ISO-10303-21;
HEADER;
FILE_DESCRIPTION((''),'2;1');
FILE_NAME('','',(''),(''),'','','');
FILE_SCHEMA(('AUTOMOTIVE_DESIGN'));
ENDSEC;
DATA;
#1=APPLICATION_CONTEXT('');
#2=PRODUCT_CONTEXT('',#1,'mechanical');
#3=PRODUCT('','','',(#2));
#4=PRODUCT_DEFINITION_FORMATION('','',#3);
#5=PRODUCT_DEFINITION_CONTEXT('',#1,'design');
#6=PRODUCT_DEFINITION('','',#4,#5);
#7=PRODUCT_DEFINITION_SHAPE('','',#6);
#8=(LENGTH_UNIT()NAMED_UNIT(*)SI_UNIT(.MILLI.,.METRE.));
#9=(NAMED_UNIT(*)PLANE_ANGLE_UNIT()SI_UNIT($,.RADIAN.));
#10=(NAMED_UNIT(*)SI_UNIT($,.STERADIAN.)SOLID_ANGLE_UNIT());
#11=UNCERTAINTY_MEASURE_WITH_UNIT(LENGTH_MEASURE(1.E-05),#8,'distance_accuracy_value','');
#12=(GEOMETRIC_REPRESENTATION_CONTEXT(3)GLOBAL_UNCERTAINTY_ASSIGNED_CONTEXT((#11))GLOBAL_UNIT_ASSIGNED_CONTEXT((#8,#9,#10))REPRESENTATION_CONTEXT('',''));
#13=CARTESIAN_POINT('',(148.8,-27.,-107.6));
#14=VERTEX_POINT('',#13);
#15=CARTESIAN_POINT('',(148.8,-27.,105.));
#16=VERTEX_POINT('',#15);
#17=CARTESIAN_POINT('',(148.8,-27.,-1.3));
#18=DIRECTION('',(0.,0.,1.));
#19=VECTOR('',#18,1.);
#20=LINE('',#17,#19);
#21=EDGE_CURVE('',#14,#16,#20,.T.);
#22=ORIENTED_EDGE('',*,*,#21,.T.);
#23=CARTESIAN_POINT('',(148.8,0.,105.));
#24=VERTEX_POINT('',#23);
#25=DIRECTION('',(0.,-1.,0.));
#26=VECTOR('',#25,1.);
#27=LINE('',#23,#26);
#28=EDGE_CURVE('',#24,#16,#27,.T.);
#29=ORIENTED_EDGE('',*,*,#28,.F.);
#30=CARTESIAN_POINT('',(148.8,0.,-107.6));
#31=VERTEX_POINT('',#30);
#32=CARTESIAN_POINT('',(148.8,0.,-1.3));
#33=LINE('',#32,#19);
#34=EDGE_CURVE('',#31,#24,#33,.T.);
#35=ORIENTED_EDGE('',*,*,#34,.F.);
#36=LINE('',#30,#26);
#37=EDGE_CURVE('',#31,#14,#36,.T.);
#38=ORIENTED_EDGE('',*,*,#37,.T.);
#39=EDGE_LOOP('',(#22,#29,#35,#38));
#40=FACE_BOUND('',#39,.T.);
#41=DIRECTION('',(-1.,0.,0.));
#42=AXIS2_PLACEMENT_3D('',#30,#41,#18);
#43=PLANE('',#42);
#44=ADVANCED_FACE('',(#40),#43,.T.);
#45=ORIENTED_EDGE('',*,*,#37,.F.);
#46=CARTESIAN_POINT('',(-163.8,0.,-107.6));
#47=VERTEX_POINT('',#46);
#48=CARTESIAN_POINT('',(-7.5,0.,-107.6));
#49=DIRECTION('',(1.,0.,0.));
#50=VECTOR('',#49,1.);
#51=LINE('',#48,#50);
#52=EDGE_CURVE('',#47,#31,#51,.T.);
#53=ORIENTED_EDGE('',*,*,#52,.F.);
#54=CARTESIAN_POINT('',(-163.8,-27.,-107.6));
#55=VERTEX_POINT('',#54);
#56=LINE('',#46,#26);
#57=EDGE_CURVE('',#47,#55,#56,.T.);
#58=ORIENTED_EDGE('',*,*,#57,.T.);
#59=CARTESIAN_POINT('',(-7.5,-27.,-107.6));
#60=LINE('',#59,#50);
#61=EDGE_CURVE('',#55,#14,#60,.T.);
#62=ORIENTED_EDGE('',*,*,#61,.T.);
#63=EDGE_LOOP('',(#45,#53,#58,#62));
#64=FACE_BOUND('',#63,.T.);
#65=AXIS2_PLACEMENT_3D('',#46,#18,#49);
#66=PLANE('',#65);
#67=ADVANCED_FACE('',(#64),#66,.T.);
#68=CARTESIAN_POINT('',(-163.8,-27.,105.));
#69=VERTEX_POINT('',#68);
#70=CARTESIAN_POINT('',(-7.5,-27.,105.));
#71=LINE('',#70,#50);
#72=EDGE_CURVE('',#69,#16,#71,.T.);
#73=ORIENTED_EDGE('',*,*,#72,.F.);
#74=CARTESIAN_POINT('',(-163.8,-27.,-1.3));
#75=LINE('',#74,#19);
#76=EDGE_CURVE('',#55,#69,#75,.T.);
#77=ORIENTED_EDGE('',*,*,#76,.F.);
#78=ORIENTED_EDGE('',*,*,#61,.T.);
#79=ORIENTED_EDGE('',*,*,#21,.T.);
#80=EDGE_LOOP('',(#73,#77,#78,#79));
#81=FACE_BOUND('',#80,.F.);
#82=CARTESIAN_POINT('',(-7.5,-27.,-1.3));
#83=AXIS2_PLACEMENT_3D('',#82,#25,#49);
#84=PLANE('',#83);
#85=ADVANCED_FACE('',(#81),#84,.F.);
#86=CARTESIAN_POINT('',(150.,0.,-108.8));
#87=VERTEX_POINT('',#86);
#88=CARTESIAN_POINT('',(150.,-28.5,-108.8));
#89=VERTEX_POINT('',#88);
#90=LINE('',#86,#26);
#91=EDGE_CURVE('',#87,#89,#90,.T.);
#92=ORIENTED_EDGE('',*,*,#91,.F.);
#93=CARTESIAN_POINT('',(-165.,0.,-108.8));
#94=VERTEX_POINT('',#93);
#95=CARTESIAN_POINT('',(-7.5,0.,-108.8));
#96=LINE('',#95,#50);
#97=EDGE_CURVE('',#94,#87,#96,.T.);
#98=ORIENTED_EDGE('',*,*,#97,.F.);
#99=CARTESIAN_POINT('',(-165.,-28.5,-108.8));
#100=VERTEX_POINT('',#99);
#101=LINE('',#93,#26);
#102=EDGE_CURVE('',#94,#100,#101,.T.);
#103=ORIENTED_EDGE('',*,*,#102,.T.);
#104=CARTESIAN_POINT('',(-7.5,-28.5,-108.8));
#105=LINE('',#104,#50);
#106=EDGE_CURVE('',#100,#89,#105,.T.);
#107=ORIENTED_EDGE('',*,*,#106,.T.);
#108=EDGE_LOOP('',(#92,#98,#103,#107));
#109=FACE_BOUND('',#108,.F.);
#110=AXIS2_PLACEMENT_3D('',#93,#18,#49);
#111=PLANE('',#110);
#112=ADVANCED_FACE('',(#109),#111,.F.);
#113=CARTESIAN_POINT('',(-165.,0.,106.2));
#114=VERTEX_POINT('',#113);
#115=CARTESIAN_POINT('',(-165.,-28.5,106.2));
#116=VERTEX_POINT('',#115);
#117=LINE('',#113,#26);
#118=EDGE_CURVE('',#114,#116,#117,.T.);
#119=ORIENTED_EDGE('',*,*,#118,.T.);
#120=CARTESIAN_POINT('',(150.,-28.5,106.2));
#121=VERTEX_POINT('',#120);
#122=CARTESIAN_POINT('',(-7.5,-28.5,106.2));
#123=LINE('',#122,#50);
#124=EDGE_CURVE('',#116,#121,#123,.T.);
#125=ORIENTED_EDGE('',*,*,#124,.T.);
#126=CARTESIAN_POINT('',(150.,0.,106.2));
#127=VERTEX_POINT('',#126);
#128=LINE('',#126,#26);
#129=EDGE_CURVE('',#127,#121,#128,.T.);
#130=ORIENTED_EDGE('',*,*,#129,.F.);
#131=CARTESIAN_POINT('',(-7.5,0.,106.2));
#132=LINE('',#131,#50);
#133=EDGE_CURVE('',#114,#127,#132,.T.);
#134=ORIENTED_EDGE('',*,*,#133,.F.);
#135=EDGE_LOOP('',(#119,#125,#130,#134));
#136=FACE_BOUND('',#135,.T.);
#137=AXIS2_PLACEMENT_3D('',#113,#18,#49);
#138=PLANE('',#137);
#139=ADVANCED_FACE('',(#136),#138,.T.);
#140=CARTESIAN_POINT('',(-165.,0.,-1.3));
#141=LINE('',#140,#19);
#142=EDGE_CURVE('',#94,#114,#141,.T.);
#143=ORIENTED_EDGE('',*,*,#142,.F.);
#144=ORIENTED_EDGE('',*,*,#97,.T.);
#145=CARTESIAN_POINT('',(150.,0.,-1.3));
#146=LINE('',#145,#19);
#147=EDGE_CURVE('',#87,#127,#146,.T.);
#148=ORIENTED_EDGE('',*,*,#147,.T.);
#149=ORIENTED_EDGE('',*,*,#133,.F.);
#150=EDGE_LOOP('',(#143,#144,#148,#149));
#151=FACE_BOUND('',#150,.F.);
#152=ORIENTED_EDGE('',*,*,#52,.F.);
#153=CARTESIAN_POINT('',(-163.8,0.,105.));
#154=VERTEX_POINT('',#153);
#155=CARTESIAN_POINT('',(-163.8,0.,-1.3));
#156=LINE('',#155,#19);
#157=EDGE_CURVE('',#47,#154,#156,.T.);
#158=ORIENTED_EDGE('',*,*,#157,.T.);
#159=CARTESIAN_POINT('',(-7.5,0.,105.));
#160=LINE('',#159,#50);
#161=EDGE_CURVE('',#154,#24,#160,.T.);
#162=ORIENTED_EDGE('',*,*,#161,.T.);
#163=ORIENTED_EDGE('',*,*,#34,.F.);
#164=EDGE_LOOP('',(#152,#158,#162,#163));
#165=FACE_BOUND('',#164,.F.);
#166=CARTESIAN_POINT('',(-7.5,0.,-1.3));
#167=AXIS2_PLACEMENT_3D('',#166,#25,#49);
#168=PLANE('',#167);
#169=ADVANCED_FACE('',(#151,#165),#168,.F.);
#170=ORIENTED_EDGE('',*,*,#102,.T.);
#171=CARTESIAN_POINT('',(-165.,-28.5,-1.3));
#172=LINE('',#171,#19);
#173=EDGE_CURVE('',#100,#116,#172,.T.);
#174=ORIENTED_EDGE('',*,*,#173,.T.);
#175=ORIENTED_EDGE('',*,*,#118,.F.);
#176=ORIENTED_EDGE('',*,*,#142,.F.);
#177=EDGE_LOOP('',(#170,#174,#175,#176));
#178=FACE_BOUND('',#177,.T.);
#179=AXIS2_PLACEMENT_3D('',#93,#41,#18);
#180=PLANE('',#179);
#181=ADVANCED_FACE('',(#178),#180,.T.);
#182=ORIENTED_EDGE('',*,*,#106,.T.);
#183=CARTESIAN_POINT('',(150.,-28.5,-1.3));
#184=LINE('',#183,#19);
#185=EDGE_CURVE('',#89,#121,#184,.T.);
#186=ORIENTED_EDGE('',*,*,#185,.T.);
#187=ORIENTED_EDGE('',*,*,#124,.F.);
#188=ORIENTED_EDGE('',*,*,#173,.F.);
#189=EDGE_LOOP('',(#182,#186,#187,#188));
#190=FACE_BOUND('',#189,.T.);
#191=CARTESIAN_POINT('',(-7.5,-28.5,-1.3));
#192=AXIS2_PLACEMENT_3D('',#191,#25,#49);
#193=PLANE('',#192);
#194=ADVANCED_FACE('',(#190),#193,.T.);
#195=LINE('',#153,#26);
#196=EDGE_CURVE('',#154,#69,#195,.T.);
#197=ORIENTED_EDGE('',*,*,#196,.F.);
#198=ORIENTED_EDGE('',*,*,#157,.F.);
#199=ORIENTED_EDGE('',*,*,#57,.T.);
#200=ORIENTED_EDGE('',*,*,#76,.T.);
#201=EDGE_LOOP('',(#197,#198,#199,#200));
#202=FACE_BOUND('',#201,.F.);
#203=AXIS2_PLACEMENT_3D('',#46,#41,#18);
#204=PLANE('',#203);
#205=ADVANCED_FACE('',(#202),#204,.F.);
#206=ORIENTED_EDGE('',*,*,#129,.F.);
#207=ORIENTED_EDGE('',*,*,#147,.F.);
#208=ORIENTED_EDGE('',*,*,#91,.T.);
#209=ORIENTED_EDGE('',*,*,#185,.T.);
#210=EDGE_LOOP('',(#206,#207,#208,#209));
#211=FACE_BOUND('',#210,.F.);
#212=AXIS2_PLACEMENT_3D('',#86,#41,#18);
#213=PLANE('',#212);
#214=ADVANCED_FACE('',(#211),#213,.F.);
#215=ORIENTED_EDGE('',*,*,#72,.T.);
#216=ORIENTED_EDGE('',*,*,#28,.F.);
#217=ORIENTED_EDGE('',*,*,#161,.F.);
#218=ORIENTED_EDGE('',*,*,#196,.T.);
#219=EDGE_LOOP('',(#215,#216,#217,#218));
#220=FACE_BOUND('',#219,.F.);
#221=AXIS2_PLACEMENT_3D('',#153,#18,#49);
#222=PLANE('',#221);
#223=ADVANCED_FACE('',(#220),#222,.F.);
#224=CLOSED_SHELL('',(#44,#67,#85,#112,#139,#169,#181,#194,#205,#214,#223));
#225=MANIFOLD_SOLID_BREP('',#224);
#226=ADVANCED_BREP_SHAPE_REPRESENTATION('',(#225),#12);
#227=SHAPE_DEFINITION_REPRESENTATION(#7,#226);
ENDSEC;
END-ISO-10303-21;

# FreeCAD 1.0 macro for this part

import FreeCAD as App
import Part
import Sketcher
Q = App.Units.Quantity


def add_polygon(sketch, points):
    """Adds a closed chain of lines whose ends are joined by coincident constraints."""
    first, n = sketch.GeometryCount, len(points)
    for a, b in zip(points, points[1:] + points[:1]):
        sketch.addGeometry(Part.LineSegment(App.Vector(*a, 0), App.Vector(*b, 0)), False)
    for i in range(n):
        sketch.addConstraint(Sketcher.Constraint("Coincident", first + i, 2, first + (i + 1) % n, 1))

doc = App.newDocument("Part")
body = doc.addObject("PartDesign::Body", "Body")

sketch1 = doc.addObject("Sketcher::SketchObject", "Sketch")
body.addObject(sketch1)
sketch1.AttachmentSupport = (doc.XZ_Plane, [""])
sketch1.MapMode = "FlatFace"
add_polygon(sketch1, [(-165, 106.2), (-165, -108.8), (150, -108.8), (150, 106.2)])
add_polygon(sketch1, [(148.8, -107.6), (-163.8, -107.6), (-163.8, 105), (148.8, 105)])
sketch1.addConstraint([
    Sketcher.Constraint("Vertical", 0),
    Sketcher.Constraint("Horizontal", 1),
    Sketcher.Constraint("Vertical", 2),
    Sketcher.Constraint("Horizontal", 3),
    Sketcher.Constraint("Horizontal", 4),
    Sketcher.Constraint("Vertical", 5),
    Sketcher.Constraint("Horizontal", 6),
    Sketcher.Constraint("Vertical", 7),
    Sketcher.Constraint("DistanceX", 1, 1, 1, 2, Q("315 mm")),
    Sketcher.Constraint("DistanceY", 0, 2, 0, 1, Q("215 mm")),
    Sketcher.Constraint("DistanceX", 4, 2, 4, 1, Q("312.6 mm")),
    Sketcher.Constraint("DistanceY", 5, 1, 5, 2, Q("212.6 mm")),
    Sketcher.Constraint("DistanceX", 0, 2, -1, 1, Q("165 mm")),
    Sketcher.Constraint("DistanceY", -1, 1, 5, 2, Q("105 mm")),
    Sketcher.Constraint("DistanceY", 0, 2, -1, 1, Q("108.8 mm")),
    Sketcher.Constraint("DistanceX", 4, 2, -1, 1, Q("163.8 mm")),
])
pad1 = doc.addObject("PartDesign::Pad", "Pad")
body.addObject(pad1)
pad1.Profile = sketch1
pad1.Length = 28.5

sketch2 = doc.addObject("Sketcher::SketchObject", "Sketch001")
body.addObject(sketch2)
sketch2.AttachmentSupport = (doc.XZ_Plane, [""])
sketch2.MapMode = "FlatFace"
sketch2.AttachmentOffset = App.Placement(App.Vector(0, 0, 28.5), App.Rotation())
add_polygon(sketch2, [(-163.8, 105), (-163.8, -107.6), (148.8, -107.6), (148.8, 105)])
sketch2.addConstraint([
    Sketcher.Constraint("Vertical", 0),
    Sketcher.Constraint("Horizontal", 1),
    Sketcher.Constraint("Vertical", 2),
    Sketcher.Constraint("Horizontal", 3),
    Sketcher.Constraint("DistanceX", 1, 1, 1, 2, Q("312.6 mm")),
    Sketcher.Constraint("DistanceY", 0, 2, 0, 1, Q("212.6 mm")),
    Sketcher.Constraint("DistanceY", -1, 1, 2, 2, Q("105 mm")),
    Sketcher.Constraint("DistanceX", 0, 2, -1, 1, Q("163.8 mm")),
])
pad2 = doc.addObject("PartDesign::Pad", "Pad001")
body.addObject(pad2)
pad2.Profile = sketch2
pad2.Length = 1.5
pad2.Reversed = True

doc.recompute()
